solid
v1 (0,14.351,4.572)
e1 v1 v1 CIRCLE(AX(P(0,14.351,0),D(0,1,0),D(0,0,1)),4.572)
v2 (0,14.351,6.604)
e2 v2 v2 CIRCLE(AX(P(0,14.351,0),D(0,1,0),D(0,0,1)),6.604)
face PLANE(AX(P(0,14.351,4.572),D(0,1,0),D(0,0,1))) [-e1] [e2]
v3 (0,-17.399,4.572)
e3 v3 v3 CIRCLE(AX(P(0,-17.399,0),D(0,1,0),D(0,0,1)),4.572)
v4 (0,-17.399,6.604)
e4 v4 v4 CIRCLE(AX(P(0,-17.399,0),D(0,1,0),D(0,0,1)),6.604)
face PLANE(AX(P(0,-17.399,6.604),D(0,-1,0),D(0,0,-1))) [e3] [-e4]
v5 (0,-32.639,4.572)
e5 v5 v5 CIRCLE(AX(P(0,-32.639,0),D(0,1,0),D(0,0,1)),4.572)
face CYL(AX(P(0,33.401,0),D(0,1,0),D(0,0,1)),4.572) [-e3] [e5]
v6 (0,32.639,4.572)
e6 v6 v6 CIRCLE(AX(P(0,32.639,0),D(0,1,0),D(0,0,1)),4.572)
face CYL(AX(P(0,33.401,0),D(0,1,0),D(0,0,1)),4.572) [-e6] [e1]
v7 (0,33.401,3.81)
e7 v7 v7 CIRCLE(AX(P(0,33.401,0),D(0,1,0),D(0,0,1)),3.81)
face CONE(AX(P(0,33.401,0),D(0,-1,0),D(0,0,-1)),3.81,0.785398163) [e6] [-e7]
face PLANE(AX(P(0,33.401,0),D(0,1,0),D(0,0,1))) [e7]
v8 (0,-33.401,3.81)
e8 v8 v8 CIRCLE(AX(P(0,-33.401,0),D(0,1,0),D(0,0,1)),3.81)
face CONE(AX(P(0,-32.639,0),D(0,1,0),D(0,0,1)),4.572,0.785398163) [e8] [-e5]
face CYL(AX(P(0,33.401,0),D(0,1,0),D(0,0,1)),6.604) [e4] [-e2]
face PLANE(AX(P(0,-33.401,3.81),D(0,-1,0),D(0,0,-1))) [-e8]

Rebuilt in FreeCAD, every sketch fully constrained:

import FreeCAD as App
import Part
import Sketcher

V = App.Vector
Q = App.Units.Quantity


def add_polygon(sketch, points):
    """Adds a closed chain of lines whose ends are joined by coincident constraints."""
    first, n = sketch.GeometryCount, len(points)
    for a, b in zip(points, points[1:] + points[:1]):
        sketch.addGeometry(Part.LineSegment(App.Vector(*a, 0), App.Vector(*b, 0)), False)
    for i in range(n):
        sketch.addConstraint(Sketcher.Constraint("Coincident", first + i, 2, first + (i + 1) % n, 1))

doc = App.newDocument("Part")
body = doc.addObject("PartDesign::Body", "Body")

# Sketch on YZ plane
sketch1 = doc.addObject("Sketcher::SketchObject", "Sketch")
body.addObject(sketch1)
sketch1.AttachmentSupport = (doc.YZ_Plane, [""])
sketch1.MapMode = "FlatFace"
add_polygon(sketch1, [(33.4, 0), (33.4, 3.8), (32.6, 4.6), (14.4, 4.6), (14.4, 6.6), (-17.4, 6.6), (-17.4, 4.6), (-32.6, 4.6), (-33.4, 3.8), (-33.4, 0)])  # lines 0-9
sketch1.addConstraint(Sketcher.Constraint("Vertical", 0))
sketch1.addConstraint(Sketcher.Constraint("Horizontal", 2))
sketch1.addConstraint(Sketcher.Constraint("Vertical", 3))
sketch1.addConstraint(Sketcher.Constraint("Horizontal", 4))
sketch1.addConstraint(Sketcher.Constraint("Vertical", 5))
sketch1.addConstraint(Sketcher.Constraint("Horizontal", 6))
sketch1.addConstraint(Sketcher.Constraint("Vertical", 8))
sketch1.addConstraint(Sketcher.Constraint("Horizontal", 9))
sketch1.addConstraint(Sketcher.Constraint("Symmetric", 8, 2, 9, 2, -1, 1))
sketch1.addConstraint(Sketcher.Constraint("Symmetric", 1, 2, 6, 2, -2))
sketch1.addConstraint(Sketcher.Constraint("Perpendicular", 1, 7))
sketch1.addConstraint(Sketcher.Constraint("Horizontal", 0, 2, 7, 2))
sketch1.addConstraint(Sketcher.Constraint("DistanceX", 6, 2, 6, 1, Q("0.6 in")))
sketch1.addConstraint(Sketcher.Constraint("DistanceX", 4, 2, 0, 2, Q("2 in")))
sketch1.addConstraint(Sketcher.Constraint("DistanceX", 2, 2, 2, 1, Q("0.72 in")))
sketch1.addConstraint(Sketcher.Constraint("DistanceX", 4, 2, 4, 1, Q("1.25 in")))
sketch1.addConstraint(Sketcher.Constraint("DistanceY", 0, 1, 0, 2, Q("0.15 in")))
sketch1.addConstraint(Sketcher.Constraint("DistanceY", 3, 1, 3, 2, Q("0.08 in")))
revolution = doc.addObject("PartDesign::Revolution", "Revolution")
body.addObject(revolution)
revolution.Profile = sketch1
revolution.ReferenceAxis = (sketch1, ["H_Axis"])
revolution.Angle = 360

doc.recompute()
